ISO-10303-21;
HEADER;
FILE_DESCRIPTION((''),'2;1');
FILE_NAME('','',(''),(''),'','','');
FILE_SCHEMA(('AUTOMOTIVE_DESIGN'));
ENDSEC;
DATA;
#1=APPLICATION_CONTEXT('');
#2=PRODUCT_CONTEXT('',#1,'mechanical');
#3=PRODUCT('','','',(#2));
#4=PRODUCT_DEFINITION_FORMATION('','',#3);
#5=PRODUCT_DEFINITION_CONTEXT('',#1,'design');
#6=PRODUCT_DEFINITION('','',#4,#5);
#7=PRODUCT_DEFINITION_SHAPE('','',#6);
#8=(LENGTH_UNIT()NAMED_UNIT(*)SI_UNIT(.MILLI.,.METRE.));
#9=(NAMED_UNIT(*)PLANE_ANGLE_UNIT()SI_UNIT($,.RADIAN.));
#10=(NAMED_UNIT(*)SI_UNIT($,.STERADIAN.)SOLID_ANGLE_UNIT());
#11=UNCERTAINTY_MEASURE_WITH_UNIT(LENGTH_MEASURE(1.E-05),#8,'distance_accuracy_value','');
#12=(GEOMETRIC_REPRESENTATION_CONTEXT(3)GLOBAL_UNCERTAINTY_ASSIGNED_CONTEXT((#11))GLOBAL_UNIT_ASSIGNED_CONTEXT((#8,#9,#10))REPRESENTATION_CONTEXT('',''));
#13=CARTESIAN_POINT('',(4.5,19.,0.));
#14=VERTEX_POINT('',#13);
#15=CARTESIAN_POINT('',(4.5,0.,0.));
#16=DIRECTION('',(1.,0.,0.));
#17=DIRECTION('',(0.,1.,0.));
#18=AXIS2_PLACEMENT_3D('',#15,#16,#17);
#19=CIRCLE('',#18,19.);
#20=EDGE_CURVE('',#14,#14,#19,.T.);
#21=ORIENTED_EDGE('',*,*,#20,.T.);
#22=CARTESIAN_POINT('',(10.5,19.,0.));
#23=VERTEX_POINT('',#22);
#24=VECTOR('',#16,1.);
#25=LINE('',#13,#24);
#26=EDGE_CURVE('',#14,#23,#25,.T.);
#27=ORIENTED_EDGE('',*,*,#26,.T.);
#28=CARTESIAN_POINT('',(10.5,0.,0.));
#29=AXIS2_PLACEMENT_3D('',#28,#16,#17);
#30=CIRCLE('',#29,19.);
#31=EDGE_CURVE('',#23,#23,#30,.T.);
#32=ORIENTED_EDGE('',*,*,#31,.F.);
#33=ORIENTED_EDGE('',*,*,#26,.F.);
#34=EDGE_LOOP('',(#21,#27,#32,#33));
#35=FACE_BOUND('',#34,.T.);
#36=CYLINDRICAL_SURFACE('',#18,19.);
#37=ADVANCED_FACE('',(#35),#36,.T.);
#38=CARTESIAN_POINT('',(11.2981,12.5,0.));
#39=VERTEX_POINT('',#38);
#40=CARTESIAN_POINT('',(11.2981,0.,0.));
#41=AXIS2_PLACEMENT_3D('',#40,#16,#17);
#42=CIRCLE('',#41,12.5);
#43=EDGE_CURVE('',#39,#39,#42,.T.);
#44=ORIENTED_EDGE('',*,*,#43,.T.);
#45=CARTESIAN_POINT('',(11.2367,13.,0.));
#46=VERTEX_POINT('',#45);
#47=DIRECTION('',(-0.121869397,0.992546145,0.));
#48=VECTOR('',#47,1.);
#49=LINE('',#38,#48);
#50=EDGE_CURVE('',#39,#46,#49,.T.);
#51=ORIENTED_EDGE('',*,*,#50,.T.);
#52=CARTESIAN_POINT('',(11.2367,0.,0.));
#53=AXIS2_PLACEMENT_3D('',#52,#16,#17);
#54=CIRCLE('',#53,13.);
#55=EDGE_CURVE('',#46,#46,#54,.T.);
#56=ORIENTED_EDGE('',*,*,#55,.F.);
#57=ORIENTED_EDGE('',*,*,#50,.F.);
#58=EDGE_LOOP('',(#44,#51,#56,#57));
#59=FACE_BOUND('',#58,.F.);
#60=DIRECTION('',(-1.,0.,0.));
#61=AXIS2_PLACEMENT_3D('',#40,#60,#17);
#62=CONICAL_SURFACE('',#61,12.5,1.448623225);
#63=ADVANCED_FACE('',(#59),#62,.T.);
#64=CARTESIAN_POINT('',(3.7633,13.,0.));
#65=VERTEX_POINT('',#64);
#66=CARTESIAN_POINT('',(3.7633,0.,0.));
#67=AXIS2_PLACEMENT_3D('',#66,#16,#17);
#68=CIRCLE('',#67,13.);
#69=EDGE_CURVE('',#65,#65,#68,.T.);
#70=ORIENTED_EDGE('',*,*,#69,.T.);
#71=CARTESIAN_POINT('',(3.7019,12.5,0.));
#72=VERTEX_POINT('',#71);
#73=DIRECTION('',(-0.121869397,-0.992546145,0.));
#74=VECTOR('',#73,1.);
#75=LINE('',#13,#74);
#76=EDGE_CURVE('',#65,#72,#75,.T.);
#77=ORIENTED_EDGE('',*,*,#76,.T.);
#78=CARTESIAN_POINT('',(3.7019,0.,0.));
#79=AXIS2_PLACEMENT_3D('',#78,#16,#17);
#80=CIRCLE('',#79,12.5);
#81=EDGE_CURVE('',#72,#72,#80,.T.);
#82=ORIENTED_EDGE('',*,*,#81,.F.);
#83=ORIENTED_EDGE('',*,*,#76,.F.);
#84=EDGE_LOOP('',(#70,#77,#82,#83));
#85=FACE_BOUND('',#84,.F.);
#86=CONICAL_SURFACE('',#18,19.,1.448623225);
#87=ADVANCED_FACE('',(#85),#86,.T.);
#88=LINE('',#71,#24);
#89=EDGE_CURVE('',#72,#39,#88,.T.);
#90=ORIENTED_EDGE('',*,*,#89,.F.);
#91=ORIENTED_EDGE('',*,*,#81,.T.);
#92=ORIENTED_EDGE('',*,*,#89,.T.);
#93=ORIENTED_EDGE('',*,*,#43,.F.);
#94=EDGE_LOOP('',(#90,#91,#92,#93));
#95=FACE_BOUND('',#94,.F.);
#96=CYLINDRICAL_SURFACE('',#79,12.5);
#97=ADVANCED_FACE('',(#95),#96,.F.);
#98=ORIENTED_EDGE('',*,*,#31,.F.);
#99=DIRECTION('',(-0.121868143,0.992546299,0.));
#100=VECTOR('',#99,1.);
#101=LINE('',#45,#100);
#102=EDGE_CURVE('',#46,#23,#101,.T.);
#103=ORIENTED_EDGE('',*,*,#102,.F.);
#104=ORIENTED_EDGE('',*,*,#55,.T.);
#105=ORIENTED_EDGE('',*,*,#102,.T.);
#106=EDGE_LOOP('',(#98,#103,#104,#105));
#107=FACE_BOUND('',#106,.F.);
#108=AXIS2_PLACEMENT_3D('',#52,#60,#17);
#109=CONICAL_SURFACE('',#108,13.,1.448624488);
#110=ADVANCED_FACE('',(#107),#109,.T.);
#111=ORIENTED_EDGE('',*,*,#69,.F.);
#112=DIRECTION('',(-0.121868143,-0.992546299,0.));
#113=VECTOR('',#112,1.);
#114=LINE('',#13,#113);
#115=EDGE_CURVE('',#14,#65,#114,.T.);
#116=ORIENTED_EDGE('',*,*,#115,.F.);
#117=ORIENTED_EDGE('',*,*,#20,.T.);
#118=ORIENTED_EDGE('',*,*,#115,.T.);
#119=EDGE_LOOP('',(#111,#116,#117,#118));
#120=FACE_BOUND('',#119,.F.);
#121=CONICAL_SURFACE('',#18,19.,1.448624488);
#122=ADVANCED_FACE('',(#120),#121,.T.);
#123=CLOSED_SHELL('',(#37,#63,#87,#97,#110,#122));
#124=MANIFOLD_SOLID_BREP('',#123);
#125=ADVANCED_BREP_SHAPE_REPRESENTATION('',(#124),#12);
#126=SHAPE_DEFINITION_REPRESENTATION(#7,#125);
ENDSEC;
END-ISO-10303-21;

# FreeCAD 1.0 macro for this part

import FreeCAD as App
import Part
import Sketcher

V = App.Vector
Q = App.Units.Quantity


def add_polygon(sketch, points):
    """Adds a closed chain of lines whose ends are joined by coincident constraints."""
    first, n = sketch.GeometryCount, len(points)
    for a, b in zip(points, points[1:] + points[:1]):
        sketch.addGeometry(Part.LineSegment(App.Vector(*a, 0), App.Vector(*b, 0)), False)
    for i in range(n):
        sketch.addConstraint(Sketcher.Constraint("Coincident", first + i, 2, first + (i + 1) % n, 1))

doc = App.newDocument("Part")
body = doc.addObject("PartDesign::Body", "Body")

# Sketch on XY plane
sketch1 = body.newObject("Sketcher::SketchObject", "Sketch")
sketch1.AttachmentSupport = (doc.getObject("XY_Plane"), [""])
sketch1.MapMode = "FlatFace"
add_polygon(sketch1, [(10.5, 19), (4.5, 19), (3.8, 13), (3.7, 12.5), (11.3, 12.5), (11.2, 13)])  # lines 0-5
sketch1.addConstraint(Sketcher.Constraint("Horizontal", 0))
sketch1.addConstraint(Sketcher.Constraint("Horizontal", 3))
sketch1.addConstraint(Sketcher.Constraint("Parallel", 1, 2))
sketch1.addConstraint(Sketcher.Constraint("Parallel", 4, 5))
sketch1.addConstraint(Sketcher.Constraint("Horizontal", 1, 2, 4, 2))
sketch1.addConstraint(Sketcher.Constraint("Equal", 2, 4))
sketch1.addConstraint(Sketcher.Constraint("DistanceY", -1, 1, 2, 2, Q("12.5 mm")))
sketch1.addConstraint(Sketcher.Constraint("DistanceX", 0, 2, 0, 1, Q("6 mm")))
sketch1.addConstraint(Sketcher.Constraint("Angle", 1, Q("-97 deg")))
sketch1.addConstraint(Sketcher.Constraint("DistanceY", -1, 1, 0, 2, Q("19 mm")))
sketch1.addConstraint(Sketcher.Constraint("DistanceY", -1, 1, 1, 2, Q("13 mm")))
sketch1.addConstraint(Sketcher.Constraint("DistanceX", -1, 1, 0, 2, Q("4.5 mm")))
revolution = body.newObject("PartDesign::Revolution", "Revolution")
revolution.Profile = sketch1
revolution.ReferenceAxis = (sketch1, ["H_Axis"])
revolution.Angle = 360

doc.recompute()
